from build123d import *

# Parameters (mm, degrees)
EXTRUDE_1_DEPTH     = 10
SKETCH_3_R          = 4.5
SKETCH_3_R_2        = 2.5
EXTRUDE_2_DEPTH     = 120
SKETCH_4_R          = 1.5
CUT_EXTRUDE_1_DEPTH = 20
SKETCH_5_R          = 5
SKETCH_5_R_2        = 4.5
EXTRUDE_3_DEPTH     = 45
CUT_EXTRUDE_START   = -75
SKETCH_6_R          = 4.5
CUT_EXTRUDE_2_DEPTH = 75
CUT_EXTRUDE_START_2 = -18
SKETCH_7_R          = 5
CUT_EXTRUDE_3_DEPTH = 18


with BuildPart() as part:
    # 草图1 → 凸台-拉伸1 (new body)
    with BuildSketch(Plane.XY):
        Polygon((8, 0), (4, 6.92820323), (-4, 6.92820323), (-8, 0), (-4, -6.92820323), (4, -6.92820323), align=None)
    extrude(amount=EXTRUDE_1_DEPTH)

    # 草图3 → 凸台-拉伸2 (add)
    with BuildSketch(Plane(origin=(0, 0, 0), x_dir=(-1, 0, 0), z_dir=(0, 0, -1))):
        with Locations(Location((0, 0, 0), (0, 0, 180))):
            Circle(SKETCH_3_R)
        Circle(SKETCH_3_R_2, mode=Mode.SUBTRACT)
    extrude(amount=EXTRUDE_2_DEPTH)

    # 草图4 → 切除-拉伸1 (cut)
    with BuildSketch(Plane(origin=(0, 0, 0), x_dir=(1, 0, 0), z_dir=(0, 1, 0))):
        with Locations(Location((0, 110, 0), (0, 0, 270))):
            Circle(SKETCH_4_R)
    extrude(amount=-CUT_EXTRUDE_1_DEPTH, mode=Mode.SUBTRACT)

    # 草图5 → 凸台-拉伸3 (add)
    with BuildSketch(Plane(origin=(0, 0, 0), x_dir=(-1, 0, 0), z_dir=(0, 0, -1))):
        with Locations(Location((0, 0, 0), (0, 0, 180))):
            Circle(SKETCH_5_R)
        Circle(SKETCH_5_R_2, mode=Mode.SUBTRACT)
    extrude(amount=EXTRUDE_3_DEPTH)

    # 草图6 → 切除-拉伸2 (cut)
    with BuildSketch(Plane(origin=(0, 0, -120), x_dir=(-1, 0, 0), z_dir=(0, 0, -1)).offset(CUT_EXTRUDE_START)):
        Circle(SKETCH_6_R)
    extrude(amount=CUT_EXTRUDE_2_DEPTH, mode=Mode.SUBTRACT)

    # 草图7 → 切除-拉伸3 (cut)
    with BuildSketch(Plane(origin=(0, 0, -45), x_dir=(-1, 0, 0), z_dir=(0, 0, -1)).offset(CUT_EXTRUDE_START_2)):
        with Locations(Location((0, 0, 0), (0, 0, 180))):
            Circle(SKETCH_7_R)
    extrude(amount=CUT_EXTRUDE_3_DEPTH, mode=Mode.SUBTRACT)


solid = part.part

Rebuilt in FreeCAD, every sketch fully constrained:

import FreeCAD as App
import Part
import Sketcher
Q = App.Units.Quantity


def add_polygon(sketch, points):
    """Adds a closed chain of lines whose ends are joined by coincident constraints."""
    first, n = sketch.GeometryCount, len(points)
    for a, b in zip(points, points[1:] + points[:1]):
        sketch.addGeometry(Part.LineSegment(App.Vector(*a, 0), App.Vector(*b, 0)), False)
    for i in range(n):
        sketch.addConstraint(Sketcher.Constraint("Coincident", first + i, 2, first + (i + 1) % n, 1))

doc = App.newDocument("Part")
body = doc.addObject("PartDesign::Body", "Body")

sketch1 = body.newObject("Sketcher::SketchObject", "Sketch")
sketch1.AttachmentSupport = (doc.getObject("XY_Plane"), [""])
sketch1.MapMode = "FlatFace"
add_polygon(sketch1, [(8, 0), (4, 6.928203), (-4, 6.928203), (-8, 0), (-4, -6.928203), (4, -6.928203)])
sketch1.addConstraint([
    Sketcher.Constraint("Horizontal", 1),
    Sketcher.Constraint("Horizontal", 4),
    Sketcher.Constraint("Symmetric", 0, 2, 3, 2, -1, 1),
    Sketcher.Constraint("Symmetric", 2, 2, 5, 2, -1, 1),
    Sketcher.Constraint("PointOnObject", 2, 2, -1),
    Sketcher.Constraint("Parallel", 2, 5),
    Sketcher.Constraint("Vertical", 1, 2, 3, 2),
    Sketcher.Constraint("DistanceX", 1, 2, 1, 1, 8.0),
    Sketcher.Constraint("Angle", 0, Q("120 deg")),
    Sketcher.Constraint("Distance", 0, 8.0),
])
pad1 = body.newObject("PartDesign::Pad", "Pad")
pad1.Profile = sketch1
pad1.Length = 10

sketch2 = body.newObject("Sketcher::SketchObject", "Sketch001")
sketch2.AttachmentSupport = (doc.getObject("XY_Plane"), [""])
sketch2.MapMode = "FlatFace"
sketch2.addGeometry([
    Part.Circle(App.Vector(0, 0, 0), App.Vector(0, 0, 1), 4.5),
    Part.Circle(App.Vector(0, 0, 0), App.Vector(0, 0, 1), 2.5),
], False)
sketch2.addConstraint([
    Sketcher.Constraint("Coincident", 0, 3, -1, 1),
    Sketcher.Constraint("Coincident", 1, 3, -1, 1),
    Sketcher.Constraint("Diameter", 0, 9.0),
    Sketcher.Constraint("Diameter", 1, 5.0),
])
pad2 = body.newObject("PartDesign::Pad", "Pad001")
pad2.Profile = sketch2
pad2.Length = 120
pad2.Reversed = True

sketch3 = body.newObject("Sketcher::SketchObject", "Sketch002")
sketch3.AttachmentSupport = (doc.getObject("XZ_Plane"), [""])
sketch3.MapMode = "FlatFace"
sketch3.addGeometry(Part.Circle(App.Vector(0, -110, 0), App.Vector(0, 0, 1), 1.5), False)
sketch3.addConstraint([
    Sketcher.Constraint("PointOnObject", 0, 3, -2),
    Sketcher.Constraint("Diameter", 0, 3.0),
    Sketcher.Constraint("DistanceY", 0, 3, -1, 1, 110.0),
])
pocket1 = body.newObject("PartDesign::Pocket", "Pocket")
pocket1.Profile = sketch3
pocket1.Length = 20
pocket1.Reversed = True

sketch4 = body.newObject("Sketcher::SketchObject", "Sketch003")
sketch4.AttachmentSupport = (doc.getObject("XY_Plane"), [""])
sketch4.MapMode = "FlatFace"
sketch4.addGeometry([
    Part.Circle(App.Vector(0, 0, 0), App.Vector(0, 0, 1), 5),
    Part.Circle(App.Vector(0, 0, 0), App.Vector(0, 0, 1), 4.5),
], False)
sketch4.addConstraint([
    Sketcher.Constraint("Coincident", 0, 3, -1, 1),
    Sketcher.Constraint("Coincident", 1, 3, -1, 1),
    Sketcher.Constraint("Diameter", 0, 10.0),
    Sketcher.Constraint("Diameter", 1, 9.0),
])
pad3 = body.newObject("PartDesign::Pad", "Pad002")
pad3.Profile = sketch4
pad3.Length = 45
pad3.Reversed = True

sketch5 = body.newObject("Sketcher::SketchObject", "Sketch004")
sketch5.AttachmentSupport = (doc.getObject("XY_Plane"), [""])
sketch5.MapMode = "FlatFace"
sketch5.AttachmentOffset = App.Placement(App.Vector(0, 0, -45), App.Rotation())
sketch5.addGeometry(Part.Circle(App.Vector(0, 0, 0), App.Vector(0, 0, 1), 4.5), False)
sketch5.addConstraint([
    Sketcher.Constraint("Coincident", 0, 3, -1, 1),
    Sketcher.Constraint("Diameter", 0, 9.0),
])
pocket2 = body.newObject("PartDesign::Pocket", "Pocket001")
pocket2.Profile = sketch5
pocket2.Length = 75

sketch6 = body.newObject("Sketcher::SketchObject", "Sketch005")
sketch6.AttachmentSupport = (doc.getObject("XY_Plane"), [""])
sketch6.MapMode = "FlatFace"
sketch6.AttachmentOffset = App.Placement(App.Vector(0, 0, -27), App.Rotation())
sketch6.addGeometry(Part.Circle(App.Vector(0, 0, 0), App.Vector(0, 0, 1), 5), False)
sketch6.addConstraint([
    Sketcher.Constraint("Coincident", 0, 3, -1, 1),
    Sketcher.Constraint("Diameter", 0, 10.0),
])
pocket3 = body.newObject("PartDesign::Pocket", "Pocket002")
pocket3.Profile = sketch6
pocket3.Length = 18

doc.recompute()
